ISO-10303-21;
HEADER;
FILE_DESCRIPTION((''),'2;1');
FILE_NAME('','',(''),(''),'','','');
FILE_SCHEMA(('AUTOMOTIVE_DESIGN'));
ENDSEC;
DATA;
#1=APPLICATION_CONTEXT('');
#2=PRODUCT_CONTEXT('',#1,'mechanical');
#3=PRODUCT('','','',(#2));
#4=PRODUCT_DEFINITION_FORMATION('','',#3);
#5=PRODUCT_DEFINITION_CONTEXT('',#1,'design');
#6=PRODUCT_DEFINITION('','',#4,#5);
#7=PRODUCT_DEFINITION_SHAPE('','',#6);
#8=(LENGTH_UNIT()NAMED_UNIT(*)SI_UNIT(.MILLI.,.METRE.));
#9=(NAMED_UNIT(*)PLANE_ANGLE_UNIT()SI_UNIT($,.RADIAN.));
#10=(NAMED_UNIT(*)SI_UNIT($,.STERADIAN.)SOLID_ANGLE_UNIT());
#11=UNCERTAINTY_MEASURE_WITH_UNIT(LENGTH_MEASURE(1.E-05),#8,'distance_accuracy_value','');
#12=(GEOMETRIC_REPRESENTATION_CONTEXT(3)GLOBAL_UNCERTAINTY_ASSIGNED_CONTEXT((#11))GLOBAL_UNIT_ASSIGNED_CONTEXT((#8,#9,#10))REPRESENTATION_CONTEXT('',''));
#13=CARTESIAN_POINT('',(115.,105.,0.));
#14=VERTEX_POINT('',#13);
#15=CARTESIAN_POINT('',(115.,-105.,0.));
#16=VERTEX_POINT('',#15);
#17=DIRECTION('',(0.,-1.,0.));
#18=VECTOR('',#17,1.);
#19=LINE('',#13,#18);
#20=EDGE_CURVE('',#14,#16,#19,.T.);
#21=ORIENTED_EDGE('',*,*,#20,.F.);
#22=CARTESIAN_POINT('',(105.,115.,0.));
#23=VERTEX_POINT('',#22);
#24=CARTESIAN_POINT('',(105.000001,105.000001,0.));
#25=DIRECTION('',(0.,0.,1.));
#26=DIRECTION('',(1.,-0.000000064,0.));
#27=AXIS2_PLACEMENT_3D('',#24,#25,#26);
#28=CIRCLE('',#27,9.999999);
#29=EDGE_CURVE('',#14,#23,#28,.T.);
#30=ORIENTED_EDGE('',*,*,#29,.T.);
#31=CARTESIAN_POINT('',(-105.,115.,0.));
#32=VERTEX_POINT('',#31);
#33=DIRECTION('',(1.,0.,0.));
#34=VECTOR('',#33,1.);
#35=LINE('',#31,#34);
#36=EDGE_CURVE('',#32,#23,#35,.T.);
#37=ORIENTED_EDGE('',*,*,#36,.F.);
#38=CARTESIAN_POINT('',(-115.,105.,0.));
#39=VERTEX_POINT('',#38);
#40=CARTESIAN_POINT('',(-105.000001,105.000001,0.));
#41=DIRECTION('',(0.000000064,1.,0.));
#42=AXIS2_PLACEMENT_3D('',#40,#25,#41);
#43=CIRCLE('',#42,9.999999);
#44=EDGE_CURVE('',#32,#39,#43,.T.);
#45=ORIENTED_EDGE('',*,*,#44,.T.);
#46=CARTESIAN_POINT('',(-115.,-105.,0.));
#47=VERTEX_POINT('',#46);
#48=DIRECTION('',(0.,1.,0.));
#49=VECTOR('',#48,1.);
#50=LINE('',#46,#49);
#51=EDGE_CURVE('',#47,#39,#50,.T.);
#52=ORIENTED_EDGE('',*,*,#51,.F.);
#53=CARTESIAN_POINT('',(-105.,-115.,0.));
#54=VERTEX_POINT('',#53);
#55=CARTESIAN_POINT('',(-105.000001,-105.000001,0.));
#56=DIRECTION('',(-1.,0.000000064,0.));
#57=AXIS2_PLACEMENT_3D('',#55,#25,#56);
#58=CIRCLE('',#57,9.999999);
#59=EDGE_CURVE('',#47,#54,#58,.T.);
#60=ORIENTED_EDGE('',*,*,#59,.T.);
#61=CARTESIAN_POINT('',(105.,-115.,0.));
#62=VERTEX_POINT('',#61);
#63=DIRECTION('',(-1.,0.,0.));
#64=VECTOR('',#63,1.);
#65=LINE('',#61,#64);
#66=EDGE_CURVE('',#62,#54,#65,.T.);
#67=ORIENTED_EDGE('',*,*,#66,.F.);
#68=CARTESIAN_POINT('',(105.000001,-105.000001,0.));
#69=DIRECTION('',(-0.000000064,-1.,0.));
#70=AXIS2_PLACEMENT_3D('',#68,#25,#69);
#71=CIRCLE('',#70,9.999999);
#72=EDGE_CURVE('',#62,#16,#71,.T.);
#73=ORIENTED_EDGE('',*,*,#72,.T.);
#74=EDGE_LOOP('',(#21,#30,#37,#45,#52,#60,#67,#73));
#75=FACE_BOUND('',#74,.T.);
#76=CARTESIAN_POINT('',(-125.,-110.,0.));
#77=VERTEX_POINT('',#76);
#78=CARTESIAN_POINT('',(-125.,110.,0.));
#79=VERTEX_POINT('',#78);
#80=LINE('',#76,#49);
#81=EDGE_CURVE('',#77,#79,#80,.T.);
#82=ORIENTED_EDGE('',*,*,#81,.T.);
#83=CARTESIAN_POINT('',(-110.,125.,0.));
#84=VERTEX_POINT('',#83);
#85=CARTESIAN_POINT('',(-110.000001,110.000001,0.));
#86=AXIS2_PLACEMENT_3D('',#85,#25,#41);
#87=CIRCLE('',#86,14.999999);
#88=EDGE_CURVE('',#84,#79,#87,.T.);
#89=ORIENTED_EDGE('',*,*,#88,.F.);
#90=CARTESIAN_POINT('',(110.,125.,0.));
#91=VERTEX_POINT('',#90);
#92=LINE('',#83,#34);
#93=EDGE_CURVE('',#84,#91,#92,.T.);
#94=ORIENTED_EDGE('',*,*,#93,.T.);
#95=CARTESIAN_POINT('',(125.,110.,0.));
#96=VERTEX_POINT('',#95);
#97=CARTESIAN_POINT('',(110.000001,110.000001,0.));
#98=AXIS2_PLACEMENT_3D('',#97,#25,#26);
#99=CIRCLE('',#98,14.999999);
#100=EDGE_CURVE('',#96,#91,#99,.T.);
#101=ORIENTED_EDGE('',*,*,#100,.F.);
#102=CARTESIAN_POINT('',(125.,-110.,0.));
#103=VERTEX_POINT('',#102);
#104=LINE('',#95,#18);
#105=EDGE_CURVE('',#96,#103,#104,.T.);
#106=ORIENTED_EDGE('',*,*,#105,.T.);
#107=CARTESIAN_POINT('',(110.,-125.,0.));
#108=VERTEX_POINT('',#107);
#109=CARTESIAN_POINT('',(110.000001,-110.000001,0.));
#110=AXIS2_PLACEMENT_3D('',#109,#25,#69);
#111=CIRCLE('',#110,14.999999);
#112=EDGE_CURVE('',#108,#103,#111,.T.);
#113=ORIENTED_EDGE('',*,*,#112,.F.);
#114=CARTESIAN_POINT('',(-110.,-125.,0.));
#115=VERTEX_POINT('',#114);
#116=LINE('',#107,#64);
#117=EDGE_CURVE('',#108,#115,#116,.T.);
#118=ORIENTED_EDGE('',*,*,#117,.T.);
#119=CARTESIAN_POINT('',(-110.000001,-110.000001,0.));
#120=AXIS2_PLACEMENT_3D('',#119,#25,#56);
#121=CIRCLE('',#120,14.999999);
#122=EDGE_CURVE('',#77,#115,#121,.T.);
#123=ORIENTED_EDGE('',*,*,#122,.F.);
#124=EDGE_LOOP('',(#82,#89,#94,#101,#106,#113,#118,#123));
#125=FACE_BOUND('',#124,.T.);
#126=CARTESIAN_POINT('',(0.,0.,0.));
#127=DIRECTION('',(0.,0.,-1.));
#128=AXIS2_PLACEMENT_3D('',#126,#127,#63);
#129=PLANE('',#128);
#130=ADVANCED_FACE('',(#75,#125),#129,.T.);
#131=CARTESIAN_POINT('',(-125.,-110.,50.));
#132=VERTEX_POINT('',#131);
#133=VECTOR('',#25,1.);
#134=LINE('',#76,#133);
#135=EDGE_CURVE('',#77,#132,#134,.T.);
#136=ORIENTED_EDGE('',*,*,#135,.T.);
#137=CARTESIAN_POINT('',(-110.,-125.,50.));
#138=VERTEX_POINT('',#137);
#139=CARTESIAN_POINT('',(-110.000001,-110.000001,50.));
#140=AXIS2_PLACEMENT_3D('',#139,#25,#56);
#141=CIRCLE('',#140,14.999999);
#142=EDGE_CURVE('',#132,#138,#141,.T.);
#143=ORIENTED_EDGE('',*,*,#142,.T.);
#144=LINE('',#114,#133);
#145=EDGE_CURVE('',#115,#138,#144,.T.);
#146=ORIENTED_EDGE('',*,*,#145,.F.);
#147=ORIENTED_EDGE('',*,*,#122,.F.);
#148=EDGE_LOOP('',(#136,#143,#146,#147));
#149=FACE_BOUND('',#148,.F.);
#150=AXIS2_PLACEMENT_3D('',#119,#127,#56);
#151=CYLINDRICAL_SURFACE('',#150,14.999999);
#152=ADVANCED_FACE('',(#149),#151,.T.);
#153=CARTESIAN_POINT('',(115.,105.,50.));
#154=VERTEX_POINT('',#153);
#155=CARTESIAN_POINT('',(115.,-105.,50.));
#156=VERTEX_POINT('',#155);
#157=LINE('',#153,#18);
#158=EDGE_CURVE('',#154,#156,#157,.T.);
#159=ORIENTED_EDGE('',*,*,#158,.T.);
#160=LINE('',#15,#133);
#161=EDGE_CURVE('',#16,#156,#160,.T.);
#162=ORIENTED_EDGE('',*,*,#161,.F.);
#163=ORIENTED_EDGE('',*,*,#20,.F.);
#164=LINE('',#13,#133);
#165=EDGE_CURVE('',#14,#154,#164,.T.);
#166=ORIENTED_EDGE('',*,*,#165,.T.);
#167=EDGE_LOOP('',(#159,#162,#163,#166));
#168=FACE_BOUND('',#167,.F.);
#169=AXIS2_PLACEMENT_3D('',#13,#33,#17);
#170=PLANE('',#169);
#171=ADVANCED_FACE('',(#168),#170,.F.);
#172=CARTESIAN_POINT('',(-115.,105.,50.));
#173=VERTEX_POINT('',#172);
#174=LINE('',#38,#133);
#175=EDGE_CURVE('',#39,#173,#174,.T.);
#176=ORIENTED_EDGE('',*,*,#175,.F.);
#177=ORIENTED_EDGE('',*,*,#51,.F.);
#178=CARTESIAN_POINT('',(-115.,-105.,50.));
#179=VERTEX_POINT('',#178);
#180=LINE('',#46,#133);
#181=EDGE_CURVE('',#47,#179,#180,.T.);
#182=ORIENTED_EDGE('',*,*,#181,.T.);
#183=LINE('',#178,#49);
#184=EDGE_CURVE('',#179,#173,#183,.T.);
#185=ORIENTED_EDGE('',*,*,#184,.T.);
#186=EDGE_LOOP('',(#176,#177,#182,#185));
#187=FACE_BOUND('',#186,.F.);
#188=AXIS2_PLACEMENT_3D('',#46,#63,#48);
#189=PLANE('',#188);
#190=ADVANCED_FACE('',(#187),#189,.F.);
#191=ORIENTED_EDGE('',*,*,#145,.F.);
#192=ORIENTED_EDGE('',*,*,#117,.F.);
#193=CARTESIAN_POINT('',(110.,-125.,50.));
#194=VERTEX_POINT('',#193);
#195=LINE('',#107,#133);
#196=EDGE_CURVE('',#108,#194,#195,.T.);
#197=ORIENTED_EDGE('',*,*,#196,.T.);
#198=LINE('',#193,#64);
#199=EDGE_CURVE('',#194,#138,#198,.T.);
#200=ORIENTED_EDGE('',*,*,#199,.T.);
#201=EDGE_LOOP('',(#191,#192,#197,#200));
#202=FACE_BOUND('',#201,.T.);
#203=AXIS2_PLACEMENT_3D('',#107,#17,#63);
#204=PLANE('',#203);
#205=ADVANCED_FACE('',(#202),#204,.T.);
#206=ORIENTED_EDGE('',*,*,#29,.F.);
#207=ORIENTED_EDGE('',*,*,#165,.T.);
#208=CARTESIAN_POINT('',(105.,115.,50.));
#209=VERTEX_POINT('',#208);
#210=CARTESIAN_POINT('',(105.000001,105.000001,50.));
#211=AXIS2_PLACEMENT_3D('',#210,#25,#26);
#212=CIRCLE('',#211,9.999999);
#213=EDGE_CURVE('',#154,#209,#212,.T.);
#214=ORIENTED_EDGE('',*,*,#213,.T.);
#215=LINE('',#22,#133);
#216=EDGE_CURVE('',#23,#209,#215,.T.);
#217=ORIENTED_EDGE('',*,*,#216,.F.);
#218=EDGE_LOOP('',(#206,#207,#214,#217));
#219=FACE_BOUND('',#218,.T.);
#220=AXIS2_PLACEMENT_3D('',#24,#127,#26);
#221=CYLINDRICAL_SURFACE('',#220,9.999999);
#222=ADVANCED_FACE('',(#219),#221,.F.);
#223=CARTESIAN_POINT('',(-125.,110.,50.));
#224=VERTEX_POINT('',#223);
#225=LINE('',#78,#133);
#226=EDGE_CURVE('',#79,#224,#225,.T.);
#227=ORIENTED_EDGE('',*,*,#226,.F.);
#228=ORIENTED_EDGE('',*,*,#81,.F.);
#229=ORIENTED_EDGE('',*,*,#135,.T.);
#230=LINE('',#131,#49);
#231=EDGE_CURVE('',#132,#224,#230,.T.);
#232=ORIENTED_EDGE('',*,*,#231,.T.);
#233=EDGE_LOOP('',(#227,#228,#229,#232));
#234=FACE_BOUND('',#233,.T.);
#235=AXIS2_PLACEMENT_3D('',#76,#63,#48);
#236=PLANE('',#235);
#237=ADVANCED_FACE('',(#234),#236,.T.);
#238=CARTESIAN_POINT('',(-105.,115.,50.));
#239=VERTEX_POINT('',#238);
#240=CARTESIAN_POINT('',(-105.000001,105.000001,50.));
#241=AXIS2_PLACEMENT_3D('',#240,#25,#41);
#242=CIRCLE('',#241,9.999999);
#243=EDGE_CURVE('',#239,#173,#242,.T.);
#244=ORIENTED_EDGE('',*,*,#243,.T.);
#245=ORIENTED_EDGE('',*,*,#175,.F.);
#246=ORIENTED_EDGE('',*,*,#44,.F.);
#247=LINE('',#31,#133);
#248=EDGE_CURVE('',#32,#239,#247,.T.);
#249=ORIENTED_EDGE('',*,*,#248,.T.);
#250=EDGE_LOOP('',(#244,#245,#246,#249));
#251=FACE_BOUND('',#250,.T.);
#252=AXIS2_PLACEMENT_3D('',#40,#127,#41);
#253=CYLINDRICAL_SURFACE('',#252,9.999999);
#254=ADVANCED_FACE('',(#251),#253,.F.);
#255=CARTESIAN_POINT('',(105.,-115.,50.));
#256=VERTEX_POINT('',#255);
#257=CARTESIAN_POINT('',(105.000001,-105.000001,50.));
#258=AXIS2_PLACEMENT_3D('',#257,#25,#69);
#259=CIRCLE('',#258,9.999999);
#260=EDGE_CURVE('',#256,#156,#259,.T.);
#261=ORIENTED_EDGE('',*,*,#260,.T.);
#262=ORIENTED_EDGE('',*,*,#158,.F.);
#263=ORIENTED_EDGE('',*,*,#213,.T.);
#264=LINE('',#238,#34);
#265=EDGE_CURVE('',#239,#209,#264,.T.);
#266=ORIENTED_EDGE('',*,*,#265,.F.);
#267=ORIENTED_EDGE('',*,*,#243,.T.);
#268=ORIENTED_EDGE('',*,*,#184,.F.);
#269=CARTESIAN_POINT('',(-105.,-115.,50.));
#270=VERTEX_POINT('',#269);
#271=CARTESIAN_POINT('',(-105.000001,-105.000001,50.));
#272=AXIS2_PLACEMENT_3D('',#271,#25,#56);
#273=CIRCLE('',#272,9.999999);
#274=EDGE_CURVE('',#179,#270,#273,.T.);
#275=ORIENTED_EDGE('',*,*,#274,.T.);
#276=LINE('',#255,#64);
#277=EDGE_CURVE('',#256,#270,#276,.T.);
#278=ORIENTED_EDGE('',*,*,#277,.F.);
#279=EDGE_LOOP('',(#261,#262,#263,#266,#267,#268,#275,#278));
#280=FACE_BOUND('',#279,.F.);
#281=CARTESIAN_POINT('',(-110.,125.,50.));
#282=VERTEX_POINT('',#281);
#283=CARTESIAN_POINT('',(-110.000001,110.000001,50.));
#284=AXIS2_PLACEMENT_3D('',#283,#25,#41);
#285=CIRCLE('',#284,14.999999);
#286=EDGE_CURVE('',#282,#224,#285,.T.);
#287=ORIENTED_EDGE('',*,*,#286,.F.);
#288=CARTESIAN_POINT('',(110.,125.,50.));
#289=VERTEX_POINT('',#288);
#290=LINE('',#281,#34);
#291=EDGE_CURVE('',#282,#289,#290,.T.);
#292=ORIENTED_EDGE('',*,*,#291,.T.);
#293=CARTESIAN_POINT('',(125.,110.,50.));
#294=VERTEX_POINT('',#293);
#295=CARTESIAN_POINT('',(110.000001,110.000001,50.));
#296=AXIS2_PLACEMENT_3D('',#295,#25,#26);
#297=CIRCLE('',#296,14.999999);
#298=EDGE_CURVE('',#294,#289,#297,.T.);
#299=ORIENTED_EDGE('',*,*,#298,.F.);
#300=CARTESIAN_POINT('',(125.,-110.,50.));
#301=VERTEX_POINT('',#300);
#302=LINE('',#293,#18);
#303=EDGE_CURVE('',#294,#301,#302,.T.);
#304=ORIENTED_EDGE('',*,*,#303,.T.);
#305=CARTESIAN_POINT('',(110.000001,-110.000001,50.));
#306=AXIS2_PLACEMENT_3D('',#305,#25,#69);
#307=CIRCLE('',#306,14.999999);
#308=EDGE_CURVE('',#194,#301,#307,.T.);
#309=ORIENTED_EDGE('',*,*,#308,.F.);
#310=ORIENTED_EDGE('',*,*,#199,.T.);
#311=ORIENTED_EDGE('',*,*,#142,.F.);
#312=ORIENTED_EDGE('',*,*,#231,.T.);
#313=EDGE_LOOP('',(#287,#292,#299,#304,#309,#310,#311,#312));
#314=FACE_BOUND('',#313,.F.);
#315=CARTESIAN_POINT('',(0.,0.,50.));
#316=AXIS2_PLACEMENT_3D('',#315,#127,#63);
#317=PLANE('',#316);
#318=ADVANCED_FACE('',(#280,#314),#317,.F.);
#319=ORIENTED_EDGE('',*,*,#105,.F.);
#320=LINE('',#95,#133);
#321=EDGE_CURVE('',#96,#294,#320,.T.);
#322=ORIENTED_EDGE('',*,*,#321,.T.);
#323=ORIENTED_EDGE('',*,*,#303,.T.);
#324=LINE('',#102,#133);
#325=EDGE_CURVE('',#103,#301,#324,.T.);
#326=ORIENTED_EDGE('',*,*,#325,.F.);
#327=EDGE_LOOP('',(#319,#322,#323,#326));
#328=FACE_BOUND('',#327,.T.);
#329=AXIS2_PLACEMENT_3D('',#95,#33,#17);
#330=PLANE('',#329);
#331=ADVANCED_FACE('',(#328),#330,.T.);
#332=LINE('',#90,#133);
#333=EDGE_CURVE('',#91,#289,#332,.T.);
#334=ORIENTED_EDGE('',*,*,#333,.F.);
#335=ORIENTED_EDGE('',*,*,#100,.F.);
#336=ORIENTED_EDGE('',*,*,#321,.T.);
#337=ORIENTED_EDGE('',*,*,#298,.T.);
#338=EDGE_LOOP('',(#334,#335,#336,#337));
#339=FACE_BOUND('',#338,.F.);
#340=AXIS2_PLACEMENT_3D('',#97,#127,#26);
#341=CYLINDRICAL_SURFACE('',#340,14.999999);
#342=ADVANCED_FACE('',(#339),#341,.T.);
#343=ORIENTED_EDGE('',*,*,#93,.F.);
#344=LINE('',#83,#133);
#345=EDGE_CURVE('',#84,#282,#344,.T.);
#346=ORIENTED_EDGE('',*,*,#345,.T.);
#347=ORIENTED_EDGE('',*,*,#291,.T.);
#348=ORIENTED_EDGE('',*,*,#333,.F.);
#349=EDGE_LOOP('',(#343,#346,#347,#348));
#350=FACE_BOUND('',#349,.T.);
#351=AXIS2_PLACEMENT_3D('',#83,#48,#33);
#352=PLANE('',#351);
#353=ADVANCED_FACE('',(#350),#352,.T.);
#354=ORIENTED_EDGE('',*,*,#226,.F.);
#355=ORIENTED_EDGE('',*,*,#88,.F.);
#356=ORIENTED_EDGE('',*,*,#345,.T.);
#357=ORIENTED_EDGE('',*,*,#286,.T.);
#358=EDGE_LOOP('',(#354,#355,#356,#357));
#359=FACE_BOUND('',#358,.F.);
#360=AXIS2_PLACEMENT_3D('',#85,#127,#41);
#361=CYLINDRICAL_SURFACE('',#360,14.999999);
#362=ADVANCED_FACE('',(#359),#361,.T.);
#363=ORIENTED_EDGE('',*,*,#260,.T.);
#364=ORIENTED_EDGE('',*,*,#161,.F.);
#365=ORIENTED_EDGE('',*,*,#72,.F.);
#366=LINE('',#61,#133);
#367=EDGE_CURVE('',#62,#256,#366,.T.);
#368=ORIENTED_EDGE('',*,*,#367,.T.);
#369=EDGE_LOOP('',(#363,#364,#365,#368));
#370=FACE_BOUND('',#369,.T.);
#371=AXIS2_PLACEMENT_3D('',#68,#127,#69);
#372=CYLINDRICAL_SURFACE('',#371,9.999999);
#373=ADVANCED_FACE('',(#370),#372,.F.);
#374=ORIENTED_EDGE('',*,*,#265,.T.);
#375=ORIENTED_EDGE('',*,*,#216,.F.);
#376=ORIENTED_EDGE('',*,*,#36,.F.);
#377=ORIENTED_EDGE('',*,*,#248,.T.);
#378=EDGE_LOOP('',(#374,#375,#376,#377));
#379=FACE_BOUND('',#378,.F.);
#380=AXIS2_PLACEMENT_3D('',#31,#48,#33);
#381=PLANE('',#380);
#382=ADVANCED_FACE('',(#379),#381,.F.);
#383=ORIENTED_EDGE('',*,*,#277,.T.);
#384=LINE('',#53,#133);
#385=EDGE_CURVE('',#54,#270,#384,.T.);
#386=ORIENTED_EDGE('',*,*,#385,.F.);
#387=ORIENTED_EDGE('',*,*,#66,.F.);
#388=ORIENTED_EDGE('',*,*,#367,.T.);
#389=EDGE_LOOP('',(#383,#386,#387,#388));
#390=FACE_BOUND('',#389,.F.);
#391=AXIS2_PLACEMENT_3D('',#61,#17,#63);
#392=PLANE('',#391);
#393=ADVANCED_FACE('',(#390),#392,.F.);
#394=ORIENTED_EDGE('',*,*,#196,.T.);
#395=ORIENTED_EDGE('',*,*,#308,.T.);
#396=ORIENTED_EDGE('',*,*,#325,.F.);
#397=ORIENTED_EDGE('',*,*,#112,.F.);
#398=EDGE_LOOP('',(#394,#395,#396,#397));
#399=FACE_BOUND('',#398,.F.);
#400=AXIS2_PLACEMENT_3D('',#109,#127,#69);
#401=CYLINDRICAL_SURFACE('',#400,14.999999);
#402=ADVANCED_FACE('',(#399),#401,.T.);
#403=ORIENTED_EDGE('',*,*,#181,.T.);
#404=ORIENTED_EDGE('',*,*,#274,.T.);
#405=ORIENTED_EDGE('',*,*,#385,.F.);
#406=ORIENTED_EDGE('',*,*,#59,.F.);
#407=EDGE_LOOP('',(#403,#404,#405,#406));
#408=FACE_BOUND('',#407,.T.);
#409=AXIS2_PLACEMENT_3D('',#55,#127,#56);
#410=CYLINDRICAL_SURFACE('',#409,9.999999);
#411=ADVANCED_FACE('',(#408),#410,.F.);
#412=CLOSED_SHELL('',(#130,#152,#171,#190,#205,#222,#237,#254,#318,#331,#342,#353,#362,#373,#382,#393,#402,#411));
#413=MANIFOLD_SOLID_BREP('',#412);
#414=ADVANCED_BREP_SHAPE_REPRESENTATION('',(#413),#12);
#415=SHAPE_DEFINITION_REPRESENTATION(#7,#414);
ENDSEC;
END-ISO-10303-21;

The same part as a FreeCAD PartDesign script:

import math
import FreeCAD as App
import Part
import Sketcher

V = App.Vector

doc = App.newDocument("Part")
body = doc.addObject("PartDesign::Body", "Body")

sketch1 = body.newObject("Sketcher::SketchObject", "Sketch")
sketch1.AttachmentSupport = (doc.getObject("XY_Plane"), [""])
sketch1.MapMode = "FlatFace"
sketch1.addGeometry(Part.LineSegment(V(110, 125, 0), V(-110, 125, 0)), False)
sketch1.addGeometry(Part.ArcOfCircle(Part.Circle(V(-110, 110, 0), V(0, 0, 1), 15), math.radians(90), math.radians(180)), False)
sketch1.addGeometry(Part.LineSegment(V(-125, 110, 0), V(-125, -110, 0)), False)
sketch1.addGeometry(Part.ArcOfCircle(Part.Circle(V(-110, -110, 0), V(0, 0, 1), 15), math.radians(180), math.radians(270)), False)
sketch1.addGeometry(Part.LineSegment(V(-110, -125, 0), V(110, -125, 0)), False)
sketch1.addGeometry(Part.ArcOfCircle(Part.Circle(V(110, -110, 0), V(0, 0, 1), 15), math.radians(-90), math.radians(0)), False)
sketch1.addGeometry(Part.LineSegment(V(125, -110, 0), V(125, 110, 0)), False)
sketch1.addGeometry(Part.ArcOfCircle(Part.Circle(V(110, 110, 0), V(0, 0, 1), 15), math.radians(0), math.radians(90)), False)
sketch1.addGeometry(Part.LineSegment(V(-105, 115, 0), V(105, 115, 0)), False)
sketch1.addGeometry(Part.ArcOfCircle(Part.Circle(V(105, 105, 0), V(0, 0, 1), 10), math.radians(0), math.radians(90)), False)
sketch1.addGeometry(Part.LineSegment(V(115, 105, 0), V(115, -105, 0)), False)
sketch1.addGeometry(Part.ArcOfCircle(Part.Circle(V(105, -105, 0), V(0, 0, 1), 10), math.radians(-90), math.radians(0)), False)
sketch1.addGeometry(Part.LineSegment(V(105, -115, 0), V(-105, -115, 0)), False)
sketch1.addGeometry(Part.ArcOfCircle(Part.Circle(V(-105, -105, 0), V(0, 0, 1), 10), math.radians(180), math.radians(270)), False)
sketch1.addGeometry(Part.LineSegment(V(-115, -105, 0), V(-115, 105, 0)), False)
sketch1.addGeometry(Part.ArcOfCircle(Part.Circle(V(-105, 105, 0), V(0, 0, 1), 10), math.radians(90), math.radians(180)), False)
sketch1.addConstraint(Sketcher.Constraint("Tangent", 0, 2, 1, 1))
sketch1.addConstraint(Sketcher.Constraint("Tangent", 1, 2, 2, 1))
sketch1.addConstraint(Sketcher.Constraint("Tangent", 2, 2, 3, 1))
sketch1.addConstraint(Sketcher.Constraint("Tangent", 3, 2, 4, 1))
sketch1.addConstraint(Sketcher.Constraint("Tangent", 4, 2, 5, 1))
sketch1.addConstraint(Sketcher.Constraint("Tangent", 5, 2, 6, 1))
sketch1.addConstraint(Sketcher.Constraint("Tangent", 6, 2, 7, 1))
sketch1.addConstraint(Sketcher.Constraint("Tangent", 7, 2, 0, 1))
sketch1.addConstraint(Sketcher.Constraint("Tangent", 8, 2, 9, 2))
sketch1.addConstraint(Sketcher.Constraint("Tangent", 9, 1, 10, 1))
sketch1.addConstraint(Sketcher.Constraint("Tangent", 10, 2, 11, 2))
sketch1.addConstraint(Sketcher.Constraint("Tangent", 11, 1, 12, 1))
sketch1.addConstraint(Sketcher.Constraint("Tangent", 12, 2, 13, 2))
sketch1.addConstraint(Sketcher.Constraint("Tangent", 13, 1, 14, 1))
sketch1.addConstraint(Sketcher.Constraint("Tangent", 14, 2, 15, 2))
sketch1.addConstraint(Sketcher.Constraint("Tangent", 15, 1, 8, 1))
sketch1.addConstraint(Sketcher.Constraint("Horizontal", 0))
sketch1.addConstraint(Sketcher.Constraint("Vertical", 2))
sketch1.addConstraint(Sketcher.Constraint("Horizontal", 4))
sketch1.addConstraint(Sketcher.Constraint("Vertical", 6))
sketch1.addConstraint(Sketcher.Constraint("Horizontal", 8))
sketch1.addConstraint(Sketcher.Constraint("Vertical", 10))
sketch1.addConstraint(Sketcher.Constraint("Horizontal", 12))
sketch1.addConstraint(Sketcher.Constraint("Vertical", 14))
sketch1.addConstraint(Sketcher.Constraint("Equal", 1, 3))
sketch1.addConstraint(Sketcher.Constraint("Equal", 3, 5))
sketch1.addConstraint(Sketcher.Constraint("Equal", 5, 7))
sketch1.addConstraint(Sketcher.Constraint("Equal", 9, 11))
sketch1.addConstraint(Sketcher.Constraint("Equal", 11, 13))
sketch1.addConstraint(Sketcher.Constraint("Equal", 13, 15))
sketch1.addConstraint(Sketcher.Constraint("Symmetric", 1, 3, 5, 3, -1, 1))
sketch1.addConstraint(Sketcher.Constraint("Symmetric", 9, 3, 13, 3, -1, 1))
sketch1.addConstraint(Sketcher.Constraint("Equal", 4, 2))
sketch1.addConstraint(Sketcher.Constraint("Equal", 12, 10))
sketch1.addConstraint(Sketcher.Constraint("Radius", 1, 14.999999))
sketch1.addConstraint(Sketcher.Constraint("Radius", 9, 9.999999))
sketch1.addConstraint(Sketcher.Constraint("DistanceX", 0, 2, 0, 1, 220.0))
sketch1.addConstraint(Sketcher.Constraint("DistanceX", 8, 1, 8, 2, 210.0))
pad1 = body.newObject("PartDesign::Pad", "Pad")
pad1.Profile = sketch1
pad1.Length = 50

doc.recompute()
